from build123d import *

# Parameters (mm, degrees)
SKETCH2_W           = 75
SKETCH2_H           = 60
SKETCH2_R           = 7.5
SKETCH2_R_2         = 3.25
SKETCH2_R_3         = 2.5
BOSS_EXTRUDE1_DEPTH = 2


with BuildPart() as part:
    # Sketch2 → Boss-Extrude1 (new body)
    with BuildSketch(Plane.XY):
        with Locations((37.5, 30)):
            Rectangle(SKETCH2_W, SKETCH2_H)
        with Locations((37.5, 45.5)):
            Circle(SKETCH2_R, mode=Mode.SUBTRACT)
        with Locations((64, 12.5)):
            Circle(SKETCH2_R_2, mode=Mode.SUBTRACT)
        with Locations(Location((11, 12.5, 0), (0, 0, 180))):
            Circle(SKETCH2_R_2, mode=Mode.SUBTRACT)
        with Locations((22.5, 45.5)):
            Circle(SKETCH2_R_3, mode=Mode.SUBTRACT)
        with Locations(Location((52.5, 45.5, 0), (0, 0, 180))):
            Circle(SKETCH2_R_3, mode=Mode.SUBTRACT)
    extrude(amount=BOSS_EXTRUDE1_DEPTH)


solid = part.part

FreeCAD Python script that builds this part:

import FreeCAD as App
import Part
import Sketcher
Q = App.Units.Quantity


def add_polygon(sketch, points):
    """Adds a closed chain of lines whose ends are joined by coincident constraints."""
    first, n = sketch.GeometryCount, len(points)
    for a, b in zip(points, points[1:] + points[:1]):
        sketch.addGeometry(Part.LineSegment(App.Vector(*a, 0), App.Vector(*b, 0)), False)
    for i in range(n):
        sketch.addConstraint(Sketcher.Constraint("Coincident", first + i, 2, first + (i + 1) % n, 1))

doc = App.newDocument("Part")
body = doc.addObject("PartDesign::Body", "Body")

# Sketch on XY plane
sketch1 = body.newObject("Sketcher::SketchObject", "Sketch")
sketch1.AttachmentSupport = (doc.getObject("XY_Plane"), [""])
sketch1.MapMode = "FlatFace"
add_polygon(sketch1, [(0, 60), (0, 0), (75, 0), (75, 60)])  # lines 0-3
sketch1.addGeometry(Part.Circle(App.Vector(11, 12.5, 0), App.Vector(0, 0, 1), 3.25), False)  # 4
sketch1.addGeometry(Part.Circle(App.Vector(64, 12.5, 0), App.Vector(0, 0, 1), 3.25), False)  # 5
sketch1.addGeometry(Part.Circle(App.Vector(22.5, 45.5, 0), App.Vector(0, 0, 1), 2.5), False)  # 6
sketch1.addGeometry(Part.Circle(App.Vector(37.5, 45.5, 0), App.Vector(0, 0, 1), 7.5), False)  # 7
sketch1.addGeometry(Part.Circle(App.Vector(52.5, 45.5, 0), App.Vector(0, 0, 1), 2.5), False)  # 8
sketch1.addConstraint([
    Sketcher.Constraint("Vertical", 0),
    Sketcher.Constraint("Horizontal", 1),
    Sketcher.Constraint("Vertical", 2),
    Sketcher.Constraint("Horizontal", 3),
    Sketcher.Constraint("Coincident", 0, 2, -1, 1),
    Sketcher.Constraint("Equal", 4, 5),
    Sketcher.Constraint("Equal", 6, 8),
    Sketcher.Constraint("Horizontal", 4, 3, 5, 3),
    Sketcher.Constraint("Horizontal", 6, 3, 7, 3),
    Sketcher.Constraint("Horizontal", 7, 3, 8, 3),
    Sketcher.Constraint("Diameter", 6, Q("5 mm")),
    Sketcher.Constraint("Diameter", 7, Q("15 mm")),
    Sketcher.Constraint("Diameter", 4, Q("6.5 mm")),
    Sketcher.Constraint("DistanceX", 1, 1, 1, 2, Q("75 mm")),
    Sketcher.Constraint("DistanceY", 0, 2, 0, 1, Q("60 mm")),
    Sketcher.Constraint("DistanceX", -1, 1, 4, 3, Q("11 mm")),
    Sketcher.Constraint("DistanceX", -1, 1, 5, 3, Q("64 mm")),
    Sketcher.Constraint("DistanceY", 4, 3, 6, 3, Q("33 mm")),
    Sketcher.Constraint("DistanceX", 6, 3, 7, 3, Q("15 mm")),
    Sketcher.Constraint("DistanceX", 7, 3, 8, 3, Q("15 mm")),
    Sketcher.Constraint("DistanceY", -1, 1, 4, 3, Q("12.5 mm")),
    Sketcher.Constraint("DistanceX", -1, 1, 6, 3, Q("22.5 mm")),
])
pad1 = body.newObject("PartDesign::Pad", "Pad")
pad1.Profile = sketch1
pad1.Length = 2

doc.recompute()
